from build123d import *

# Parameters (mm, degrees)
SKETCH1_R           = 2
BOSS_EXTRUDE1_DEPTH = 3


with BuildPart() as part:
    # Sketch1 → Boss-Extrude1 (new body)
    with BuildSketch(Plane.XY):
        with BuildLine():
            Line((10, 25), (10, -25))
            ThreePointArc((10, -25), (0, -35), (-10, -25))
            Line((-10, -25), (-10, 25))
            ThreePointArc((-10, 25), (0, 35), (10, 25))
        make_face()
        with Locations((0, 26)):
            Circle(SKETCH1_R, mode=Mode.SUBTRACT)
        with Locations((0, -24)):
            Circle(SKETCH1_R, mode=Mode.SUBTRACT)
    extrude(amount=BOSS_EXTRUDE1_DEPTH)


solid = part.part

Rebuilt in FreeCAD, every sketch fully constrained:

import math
import FreeCAD as App
import Part
import Sketcher
from FreeCAD import Vector

doc = App.newDocument("Part")
params = doc.addObject("Spreadsheet::Sheet", "Params")
for row, (alias, value) in enumerate([
    ("sketch1_diameter", "4 mm"),
    ("sketch1_radius", "10 mm"),
    ("sketch1_height", "50 mm"),
    ("pad1_length", "3 mm"),
], start=1):
    params.set(f"A{row}", alias)
    params.set(f"B{row}", "=" + value)
    params.setAlias(f"B{row}", alias)

body = doc.addObject("PartDesign::Body", "Body")

sketch1 = body.newObject("Sketcher::SketchObject", "Sketch")
sketch1.AttachmentSupport = (doc.getObject("XY_Plane"), [""])
sketch1.MapMode = "FlatFace"
sketch1.addGeometry([
    Part.LineSegment(Vector(10, -25, 0), Vector(10, 25, 0)),
    Part.ArcOfCircle(Part.Circle(Vector(0, 25, 0), Vector(0, 0, 1), 10), math.radians(0), math.radians(180)),
    Part.LineSegment(Vector(-10, 25, 0), Vector(-10, -25, 0)),
    Part.ArcOfCircle(Part.Circle(Vector(0, -25, 0), Vector(0, 0, 1), 10), math.radians(180), math.radians(360)),
    Part.Circle(Vector(0, -24, 0), Vector(0, 0, 1), 2),
    Part.Circle(Vector(0, 26, 0), Vector(0, 0, 1), 2),
], False)
sketch1.addConstraint([
    Sketcher.Constraint("Tangent", 0, 2, 1, 1),
    Sketcher.Constraint("Tangent", 1, 2, 2, 1),
    Sketcher.Constraint("Tangent", 2, 2, 3, 1),
    Sketcher.Constraint("Tangent", 3, 2, 0, 1),
    Sketcher.Constraint("Vertical", 0),
    Sketcher.Constraint("Vertical", 2),
    Sketcher.Constraint("Equal", 4, 5),
    Sketcher.Constraint("Symmetric", 1, 3, 3, 3, -1, 1),
    Sketcher.Constraint("PointOnObject", 4, 3, -2),
    Sketcher.Constraint("PointOnObject", 5, 3, -2),
    Sketcher.Constraint("Diameter", 4, 4.0),
    Sketcher.Constraint("Radius", 1, 10.0),
    Sketcher.Constraint("DistanceY", 0, 1, 0, 2, 50.0),
    Sketcher.Constraint("DistanceY", 4, 3, -1, 1, 24.0),
    Sketcher.Constraint("DistanceY", -1, 1, 5, 3, 26.0),
])
sketch1.setExpression("Constraints[10]", "Params.sketch1_diameter")
sketch1.setExpression("Constraints[11]", "Params.sketch1_radius")
sketch1.setExpression("Constraints[12]", "Params.sketch1_height")
pad1 = body.newObject("PartDesign::Pad", "Pad")
pad1.Profile = sketch1
pad1.setExpression("Length", "Params.pad1_length")

doc.recompute()
